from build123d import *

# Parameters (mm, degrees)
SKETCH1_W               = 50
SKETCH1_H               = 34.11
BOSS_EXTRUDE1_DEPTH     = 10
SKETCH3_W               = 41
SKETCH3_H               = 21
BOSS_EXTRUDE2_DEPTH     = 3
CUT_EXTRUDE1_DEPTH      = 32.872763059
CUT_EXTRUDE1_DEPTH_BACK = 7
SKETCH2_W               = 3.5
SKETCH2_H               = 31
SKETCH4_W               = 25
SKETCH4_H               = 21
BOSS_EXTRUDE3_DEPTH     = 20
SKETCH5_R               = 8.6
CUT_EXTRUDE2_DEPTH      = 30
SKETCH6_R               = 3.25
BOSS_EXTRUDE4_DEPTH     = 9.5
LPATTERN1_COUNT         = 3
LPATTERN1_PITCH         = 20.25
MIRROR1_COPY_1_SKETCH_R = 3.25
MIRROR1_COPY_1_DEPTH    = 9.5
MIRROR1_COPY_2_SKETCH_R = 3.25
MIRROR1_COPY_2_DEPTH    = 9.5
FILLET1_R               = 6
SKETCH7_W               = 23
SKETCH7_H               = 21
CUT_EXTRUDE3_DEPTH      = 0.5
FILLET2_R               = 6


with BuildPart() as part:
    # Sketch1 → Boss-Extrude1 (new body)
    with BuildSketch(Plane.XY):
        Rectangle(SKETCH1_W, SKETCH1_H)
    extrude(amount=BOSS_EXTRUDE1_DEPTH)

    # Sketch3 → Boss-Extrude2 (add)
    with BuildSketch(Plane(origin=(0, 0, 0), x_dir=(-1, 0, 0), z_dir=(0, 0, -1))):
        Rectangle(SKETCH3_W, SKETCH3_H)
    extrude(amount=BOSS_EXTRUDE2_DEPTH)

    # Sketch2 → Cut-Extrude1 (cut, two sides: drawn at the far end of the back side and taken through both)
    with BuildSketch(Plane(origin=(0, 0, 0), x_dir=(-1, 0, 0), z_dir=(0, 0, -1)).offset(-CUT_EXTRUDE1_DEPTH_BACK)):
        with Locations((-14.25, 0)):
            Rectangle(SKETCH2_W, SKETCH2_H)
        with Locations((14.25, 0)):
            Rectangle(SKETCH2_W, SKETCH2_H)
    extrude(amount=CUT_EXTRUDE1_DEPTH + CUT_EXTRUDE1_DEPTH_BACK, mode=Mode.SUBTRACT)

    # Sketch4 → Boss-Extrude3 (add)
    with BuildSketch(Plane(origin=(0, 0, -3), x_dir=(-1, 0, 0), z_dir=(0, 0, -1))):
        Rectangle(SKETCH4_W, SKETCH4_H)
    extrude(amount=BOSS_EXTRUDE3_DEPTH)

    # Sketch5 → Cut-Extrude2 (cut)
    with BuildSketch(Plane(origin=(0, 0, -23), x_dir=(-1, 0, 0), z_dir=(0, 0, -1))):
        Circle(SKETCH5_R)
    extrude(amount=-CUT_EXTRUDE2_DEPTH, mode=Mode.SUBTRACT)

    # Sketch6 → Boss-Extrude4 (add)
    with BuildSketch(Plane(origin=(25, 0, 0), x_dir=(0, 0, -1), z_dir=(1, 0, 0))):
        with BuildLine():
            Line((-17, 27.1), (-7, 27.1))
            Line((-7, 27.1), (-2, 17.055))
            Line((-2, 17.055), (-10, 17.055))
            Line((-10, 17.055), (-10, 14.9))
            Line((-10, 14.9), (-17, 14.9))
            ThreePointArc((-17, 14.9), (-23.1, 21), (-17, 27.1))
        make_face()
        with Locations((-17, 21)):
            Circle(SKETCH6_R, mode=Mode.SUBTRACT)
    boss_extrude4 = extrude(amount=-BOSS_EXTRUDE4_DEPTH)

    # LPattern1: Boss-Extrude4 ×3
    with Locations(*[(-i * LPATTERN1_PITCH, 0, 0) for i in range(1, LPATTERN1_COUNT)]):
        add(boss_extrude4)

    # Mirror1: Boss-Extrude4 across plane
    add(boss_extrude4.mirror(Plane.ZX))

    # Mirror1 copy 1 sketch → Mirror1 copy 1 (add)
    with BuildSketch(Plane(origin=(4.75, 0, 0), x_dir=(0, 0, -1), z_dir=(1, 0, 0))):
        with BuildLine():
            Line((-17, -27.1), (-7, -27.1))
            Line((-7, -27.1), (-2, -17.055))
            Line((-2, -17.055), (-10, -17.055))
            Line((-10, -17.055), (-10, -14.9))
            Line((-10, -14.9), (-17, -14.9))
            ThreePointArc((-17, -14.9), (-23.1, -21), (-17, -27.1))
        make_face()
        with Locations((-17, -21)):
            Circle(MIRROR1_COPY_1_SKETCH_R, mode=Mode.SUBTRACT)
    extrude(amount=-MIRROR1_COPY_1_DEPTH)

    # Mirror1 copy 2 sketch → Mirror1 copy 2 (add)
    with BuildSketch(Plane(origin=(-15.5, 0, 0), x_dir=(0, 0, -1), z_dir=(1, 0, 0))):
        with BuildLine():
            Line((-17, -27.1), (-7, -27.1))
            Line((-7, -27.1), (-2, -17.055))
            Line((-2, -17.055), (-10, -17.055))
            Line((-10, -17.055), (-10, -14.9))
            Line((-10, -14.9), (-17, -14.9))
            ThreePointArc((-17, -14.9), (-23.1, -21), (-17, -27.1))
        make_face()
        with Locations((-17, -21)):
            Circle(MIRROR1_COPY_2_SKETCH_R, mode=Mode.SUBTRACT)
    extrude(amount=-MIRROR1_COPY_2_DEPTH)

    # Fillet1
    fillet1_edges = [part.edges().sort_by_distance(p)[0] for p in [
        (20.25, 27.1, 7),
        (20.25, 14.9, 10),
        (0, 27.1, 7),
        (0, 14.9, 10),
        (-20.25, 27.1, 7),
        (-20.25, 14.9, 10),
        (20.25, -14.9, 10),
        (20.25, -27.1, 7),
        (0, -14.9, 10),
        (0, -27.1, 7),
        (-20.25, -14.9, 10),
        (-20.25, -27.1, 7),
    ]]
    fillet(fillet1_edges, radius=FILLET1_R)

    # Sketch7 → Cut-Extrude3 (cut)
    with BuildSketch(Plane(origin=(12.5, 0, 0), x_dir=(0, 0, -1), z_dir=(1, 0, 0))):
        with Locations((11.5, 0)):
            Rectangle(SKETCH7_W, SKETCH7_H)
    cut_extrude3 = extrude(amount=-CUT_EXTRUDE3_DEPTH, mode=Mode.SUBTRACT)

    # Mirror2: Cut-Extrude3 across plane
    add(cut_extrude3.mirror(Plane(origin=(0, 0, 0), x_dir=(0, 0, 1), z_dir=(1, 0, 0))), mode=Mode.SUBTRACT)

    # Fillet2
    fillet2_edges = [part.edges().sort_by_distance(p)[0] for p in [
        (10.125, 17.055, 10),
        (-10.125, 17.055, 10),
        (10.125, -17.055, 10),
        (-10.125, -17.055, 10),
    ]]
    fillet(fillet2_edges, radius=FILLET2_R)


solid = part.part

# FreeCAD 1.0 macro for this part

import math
import FreeCAD as App
import Part
import Sketcher

V = App.Vector
Q = App.Units.Quantity


def edges_at(feature, points):
    """Names of the edges that pass closest to the given points."""
    edges = feature.Shape.Edges
    near = lambda p: min(range(len(edges)), key=lambda i: edges[i].distToShape(Part.Vertex(*p))[0])
    return sorted({f"Edge{near(p) + 1}" for p in points})

doc = App.newDocument("Part")
body = doc.addObject("PartDesign::Body", "Body")

# Sketch on XY plane
sketch1 = doc.addObject("Sketcher::SketchObject", "Sketch")
body.addObject(sketch1)
sketch1.AttachmentSupport = (doc.XY_Plane, [""])
sketch1.MapMode = "FlatFace"
sketch1.addGeometry(Part.LineSegment(V(-25, 17, 0), V(-25, -17, 0)), False)
sketch1.addGeometry(Part.LineSegment(V(-25, -17, 0), V(25, -17, 0)), False)
sketch1.addGeometry(Part.LineSegment(V(25, -17, 0), V(25, 17, 0)), False)
sketch1.addGeometry(Part.LineSegment(V(25, 17, 0), V(-25, 17, 0)), False)
sketch1.addConstraint(Sketcher.Constraint("Coincident", 0, 2, 1, 1))
sketch1.addConstraint(Sketcher.Constraint("Coincident", 1, 2, 2, 1))
sketch1.addConstraint(Sketcher.Constraint("Coincident", 2, 2, 3, 1))
sketch1.addConstraint(Sketcher.Constraint("Coincident", 3, 2, 0, 1))
sketch1.addConstraint(Sketcher.Constraint("Vertical", 0))
sketch1.addConstraint(Sketcher.Constraint("Horizontal", 1))
sketch1.addConstraint(Sketcher.Constraint("Vertical", 2))
sketch1.addConstraint(Sketcher.Constraint("Horizontal", 3))
sketch1.addConstraint(Sketcher.Constraint("Symmetric", 0, 2, 2, 2, -1, 1))
sketch1.addConstraint(Sketcher.Constraint("DistanceX", 1, 1, 1, 2, Q("50 mm")))
sketch1.addConstraint(Sketcher.Constraint("DistanceY", 0, 2, 0, 1, Q("34.11 mm")))
pad1 = doc.addObject("PartDesign::Pad", "Pad")
body.addObject(pad1)
pad1.Profile = sketch1
pad1.Length = 10

# Sketch on XY plane
sketch2 = doc.addObject("Sketcher::SketchObject", "Sketch001")
body.addObject(sketch2)
sketch2.AttachmentSupport = (doc.XY_Plane, [""])
sketch2.MapMode = "FlatFace"
sketch2.addGeometry(Part.LineSegment(V(20, 10, 0), V(20, -10, 0)), False)
sketch2.addGeometry(Part.LineSegment(V(20, -10, 0), V(-20, -10, 0)), False)
sketch2.addGeometry(Part.LineSegment(V(-20, -10, 0), V(-20, 10, 0)), False)
sketch2.addGeometry(Part.LineSegment(V(-20, 10, 0), V(20, 10, 0)), False)
sketch2.addConstraint(Sketcher.Constraint("Coincident", 0, 2, 1, 1))
sketch2.addConstraint(Sketcher.Constraint("Coincident", 1, 2, 2, 1))
sketch2.addConstraint(Sketcher.Constraint("Coincident", 2, 2, 3, 1))
sketch2.addConstraint(Sketcher.Constraint("Coincident", 3, 2, 0, 1))
sketch2.addConstraint(Sketcher.Constraint("Vertical", 0))
sketch2.addConstraint(Sketcher.Constraint("Horizontal", 1))
sketch2.addConstraint(Sketcher.Constraint("Vertical", 2))
sketch2.addConstraint(Sketcher.Constraint("Horizontal", 3))
sketch2.addConstraint(Sketcher.Constraint("Symmetric", 0, 2, 2, 2, -1, 1))
sketch2.addConstraint(Sketcher.Constraint("DistanceX", 1, 2, 1, 1, Q("41 mm")))
sketch2.addConstraint(Sketcher.Constraint("DistanceY", 0, 2, 0, 1, Q("21 mm")))
pad2 = doc.addObject("PartDesign::Pad", "Pad001")
body.addObject(pad2)
pad2.Profile = sketch2
pad2.Length = 3
pad2.Reversed = True

# Sketch on XY plane
sketch3 = doc.addObject("Sketcher::SketchObject", "Sketch002")
body.addObject(sketch3)
sketch3.AttachmentSupport = (doc.XY_Plane, [""])
sketch3.MapMode = "FlatFace"
sketch3.addGeometry(Part.LineSegment(V(16, 15.5, 0), V(16, -15.5, 0)), False)
sketch3.addGeometry(Part.LineSegment(V(16, -15.5, 0), V(12.5, -15.5, 0)), False)
sketch3.addGeometry(Part.LineSegment(V(12.5, -15.5, 0), V(12.5, 15.5, 0)), False)
sketch3.addGeometry(Part.LineSegment(V(12.5, 15.5, 0), V(16, 15.5, 0)), False)
sketch3.addGeometry(Part.LineSegment(V(-12.5, 15.5, 0), V(-12.5, -15.5, 0)), False)
sketch3.addGeometry(Part.LineSegment(V(-12.5, -15.5, 0), V(-16, -15.5, 0)), False)
sketch3.addGeometry(Part.LineSegment(V(-16, -15.5, 0), V(-16, 15.5, 0)), False)
sketch3.addGeometry(Part.LineSegment(V(-16, 15.5, 0), V(-12.5, 15.5, 0)), False)
sketch3.addConstraint(Sketcher.Constraint("Coincident", 0, 2, 1, 1))
sketch3.addConstraint(Sketcher.Constraint("Coincident", 1, 2, 2, 1))
sketch3.addConstraint(Sketcher.Constraint("Coincident", 2, 2, 3, 1))
sketch3.addConstraint(Sketcher.Constraint("Coincident", 3, 2, 0, 1))
sketch3.addConstraint(Sketcher.Constraint("Coincident", 4, 2, 5, 1))
sketch3.addConstraint(Sketcher.Constraint("Coincident", 5, 2, 6, 1))
sketch3.addConstraint(Sketcher.Constraint("Coincident", 6, 2, 7, 1))
sketch3.addConstraint(Sketcher.Constraint("Coincident", 7, 2, 4, 1))
sketch3.addConstraint(Sketcher.Constraint("Vertical", 0))
sketch3.addConstraint(Sketcher.Constraint("Horizontal", 1))
sketch3.addConstraint(Sketcher.Constraint("Vertical", 2))
sketch3.addConstraint(Sketcher.Constraint("Horizontal", 3))
sketch3.addConstraint(Sketcher.Constraint("Vertical", 4))
sketch3.addConstraint(Sketcher.Constraint("Horizontal", 5))
sketch3.addConstraint(Sketcher.Constraint("Vertical", 6))
sketch3.addConstraint(Sketcher.Constraint("Horizontal", 7))
sketch3.addConstraint(Sketcher.Constraint("Symmetric", 2, 2, 4, 2, -1, 1))
sketch3.addConstraint(Sketcher.Constraint("Symmetric", 0, 2, 6, 2, -1, 1))
sketch3.addConstraint(Sketcher.Constraint("Horizontal", 1, 2, 4, 2))
sketch3.addConstraint(Sketcher.Constraint("DistanceY", 0, 2, 0, 1, Q("31 mm")))
sketch3.addConstraint(Sketcher.Constraint("DistanceX", 1, 2, 1, 1, Q("3.5 mm")))
sketch3.addConstraint(Sketcher.Constraint("DistanceX", -1, 1, 0, 2, Q("16 mm")))
pocket1 = doc.addObject("PartDesign::Pocket", "Pocket")
body.addObject(pocket1)
pocket1.Profile = sketch3
pocket1.Type = "TwoLengths"
pocket1.Length = 32.872763
pocket1.Length2 = 7

# Sketch on XY plane
sketch4 = doc.addObject("Sketcher::SketchObject", "Sketch003")
body.addObject(sketch4)
sketch4.AttachmentSupport = (doc.XY_Plane, [""])
sketch4.MapMode = "FlatFace"
sketch4.AttachmentOffset = App.Placement(V(0, 0, -3), App.Rotation())
sketch4.addGeometry(Part.LineSegment(V(12, 10, 0), V(12, -10, 0)), False)
sketch4.addGeometry(Part.LineSegment(V(12, -10, 0), V(-12, -10, 0)), False)
sketch4.addGeometry(Part.LineSegment(V(-12, -10, 0), V(-12, 10, 0)), False)
sketch4.addGeometry(Part.LineSegment(V(-12, 10, 0), V(12, 10, 0)), False)
sketch4.addConstraint(Sketcher.Constraint("Coincident", 0, 2, 1, 1))
sketch4.addConstraint(Sketcher.Constraint("Coincident", 1, 2, 2, 1))
sketch4.addConstraint(Sketcher.Constraint("Coincident", 2, 2, 3, 1))
sketch4.addConstraint(Sketcher.Constraint("Coincident", 3, 2, 0, 1))
sketch4.addConstraint(Sketcher.Constraint("Vertical", 0))
sketch4.addConstraint(Sketcher.Constraint("Horizontal", 1))
sketch4.addConstraint(Sketcher.Constraint("Vertical", 2))
sketch4.addConstraint(Sketcher.Constraint("Horizontal", 3))
sketch4.addConstraint(Sketcher.Constraint("Symmetric", 0, 2, 2, 2, -1, 1))
sketch4.addConstraint(Sketcher.Constraint("DistanceX", 1, 2, 1, 1, Q("25 mm")))
sketch4.addConstraint(Sketcher.Constraint("DistanceY", 0, 2, 0, 1, Q("21 mm")))
pad3 = doc.addObject("PartDesign::Pad", "Pad002")
body.addObject(pad3)
pad3.Profile = sketch4
pad3.Length = 20
pad3.Reversed = True

# Sketch on XY plane
sketch5 = doc.addObject("Sketcher::SketchObject", "Sketch004")
body.addObject(sketch5)
sketch5.AttachmentSupport = (doc.XY_Plane, [""])
sketch5.MapMode = "FlatFace"
sketch5.AttachmentOffset = App.Placement(V(0, 0, -23), App.Rotation())
sketch5.addGeometry(Part.Circle(V(0, 0, 0), V(0, 0, 1), 9), False)
sketch5.addConstraint(Sketcher.Constraint("Coincident", 0, 3, -1, 1))
sketch5.addConstraint(Sketcher.Constraint("Diameter", 0, Q("17.2 mm")))
pocket2 = doc.addObject("PartDesign::Pocket", "Pocket001")
body.addObject(pocket2)
pocket2.Profile = sketch5
pocket2.Length = 30
pocket2.Reversed = True

# Sketch on YZ plane
sketch6 = doc.addObject("Sketcher::SketchObject", "Sketch005")
body.addObject(sketch6)
sketch6.AttachmentSupport = (doc.YZ_Plane, [""])
sketch6.MapMode = "FlatFace"
sketch6.AttachmentOffset = App.Placement(V(0, 0, 25), App.Rotation())
sketch6.addGeometry(Part.LineSegment(V(27.1, 7, 0), V(27.1, 17, 0)), False)
sketch6.addGeometry(Part.ArcOfCircle(Part.Circle(V(21, 17, 0), V(0, 0, 1), 6.1), math.radians(0), math.radians(180)), False)
sketch6.addGeometry(Part.LineSegment(V(14.9, 17, 0), V(14.9, 10, 0)), False)
sketch6.addGeometry(Part.LineSegment(V(14.9, 10, 0), V(17.1, 10, 0)), False)
sketch6.addGeometry(Part.LineSegment(V(17.1, 10, 0), V(17.1, 2, 0)), False)
sketch6.addGeometry(Part.LineSegment(V(17.1, 2, 0), V(27.1, 7, 0)), False)
sketch6.addGeometry(Part.Circle(V(21, 17, 0), V(0, 0, 1), 3.2), False)
sketch6.addConstraint(Sketcher.Constraint("Tangent", 0, 2, 1, 1))
sketch6.addConstraint(Sketcher.Constraint("Tangent", 1, 2, 2, 1))
sketch6.addConstraint(Sketcher.Constraint("Coincident", 2, 2, 3, 1))
sketch6.addConstraint(Sketcher.Constraint("Coincident", 3, 2, 4, 1))
sketch6.addConstraint(Sketcher.Constraint("Coincident", 4, 2, 5, 1))
sketch6.addConstraint(Sketcher.Constraint("Coincident", 5, 2, 0, 1))
sketch6.addConstraint(Sketcher.Constraint("Vertical", 0))
sketch6.addConstraint(Sketcher.Constraint("Vertical", 2))
sketch6.addConstraint(Sketcher.Constraint("Horizontal", 3))
sketch6.addConstraint(Sketcher.Constraint("Vertical", 4))
sketch6.addConstraint(Sketcher.Constraint("Coincident", 6, 3, 1, 3))
sketch6.addConstraint(Sketcher.Constraint("Diameter", 6, Q("6.5 mm")))
sketch6.addConstraint(Sketcher.Constraint("Radius", 1, Q("6.1 mm")))
sketch6.addConstraint(Sketcher.Constraint("DistanceY", 0, 1, 0, 2, Q("10 mm")))
sketch6.addConstraint(Sketcher.Constraint("DistanceY", 2, 2, 2, 1, Q("7 mm")))
sketch6.addConstraint(Sketcher.Constraint("DistanceY", 4, 2, 4, 1, Q("8 mm")))
sketch6.addConstraint(Sketcher.Constraint("DistanceX", -1, 1, 1, 3, Q("21 mm")))
sketch6.addConstraint(Sketcher.Constraint("DistanceY", -1, 1, 1, 3, Q("17 mm")))
sketch6.addConstraint(Sketcher.Constraint("DistanceX", 3, 1, 3, 2, Q("2.155 mm")))
pad4 = doc.addObject("PartDesign::Pad", "Pad003")
body.addObject(pad4)
pad4.Profile = sketch6
pad4.Length = 9.5
pad4.Reversed = True
doc.recompute()

linearpattern = doc.addObject("PartDesign::LinearPattern", "LinearPattern")
body.addObject(linearpattern)
linearpattern.Originals = [pad4]
linearpattern.Direction = (doc.X_Axis, [""])
linearpattern.Mode = "offset"
linearpattern.Offset = 20.25
linearpattern.Occurrences = 3
linearpattern.Reversed = True
body.Tip = linearpattern
doc.recompute()

mirrored = doc.addObject("PartDesign::Mirrored", "Mirrored")
body.addObject(mirrored)
mirrored.Originals = [pad4]
mirrored.MirrorPlane = (doc.XZ_Plane, [""])
body.Tip = mirrored

# Sketch on YZ plane
sketch7 = doc.addObject("Sketcher::SketchObject", "Sketch006")
body.addObject(sketch7)
sketch7.AttachmentSupport = (doc.YZ_Plane, [""])
sketch7.MapMode = "FlatFace"
sketch7.AttachmentOffset = App.Placement(V(0, 0, 4.75), App.Rotation())
sketch7.addGeometry(Part.LineSegment(V(-27.1, 17, 0), V(-27.1, 7, 0)), False)
sketch7.addGeometry(Part.LineSegment(V(-27.1, 7, 0), V(-17.1, 2, 0)), False)
sketch7.addGeometry(Part.LineSegment(V(-17.1, 2, 0), V(-17.1, 10, 0)), False)
sketch7.addGeometry(Part.LineSegment(V(-17.1, 10, 0), V(-14.9, 10, 0)), False)
sketch7.addGeometry(Part.LineSegment(V(-14.9, 10, 0), V(-14.9, 17, 0)), False)
sketch7.addGeometry(Part.ArcOfCircle(Part.Circle(V(-21, 17, 0), V(0, 0, 1), 6.1), math.radians(0), math.radians(180)), False)
sketch7.addGeometry(Part.Circle(V(-21, 17, 0), V(0, 0, 1), 3.2), False)
sketch7.addConstraint(Sketcher.Constraint("Coincident", 0, 2, 1, 1))
sketch7.addConstraint(Sketcher.Constraint("Coincident", 1, 2, 2, 1))
sketch7.addConstraint(Sketcher.Constraint("Coincident", 2, 2, 3, 1))
sketch7.addConstraint(Sketcher.Constraint("Coincident", 3, 2, 4, 1))
sketch7.addConstraint(Sketcher.Constraint("Tangent", 4, 2, 5, 1))
sketch7.addConstraint(Sketcher.Constraint("Tangent", 5, 2, 0, 1))
sketch7.addConstraint(Sketcher.Constraint("Vertical", 0))
sketch7.addConstraint(Sketcher.Constraint("Vertical", 2))
sketch7.addConstraint(Sketcher.Constraint("Horizontal", 3))
sketch7.addConstraint(Sketcher.Constraint("Vertical", 4))
sketch7.addConstraint(Sketcher.Constraint("Coincident", 6, 3, 5, 3))
sketch7.addConstraint(Sketcher.Constraint("Diameter", 6, Q("6.5 mm")))
sketch7.addConstraint(Sketcher.Constraint("Radius", 5, Q("6.1 mm")))
sketch7.addConstraint(Sketcher.Constraint("DistanceY", 0, 2, 0, 1, Q("10 mm")))
sketch7.addConstraint(Sketcher.Constraint("DistanceY", 2, 1, 2, 2, Q("8 mm")))
sketch7.addConstraint(Sketcher.Constraint("DistanceY", 4, 1, 4, 2, Q("7 mm")))
sketch7.addConstraint(Sketcher.Constraint("DistanceX", 5, 3, -1, 1, Q("21 mm")))
sketch7.addConstraint(Sketcher.Constraint("DistanceY", -1, 1, 5, 3, Q("17 mm")))
sketch7.addConstraint(Sketcher.Constraint("DistanceX", 3, 1, 3, 2, Q("2.155 mm")))
pad5 = doc.addObject("PartDesign::Pad", "Pad004")
body.addObject(pad5)
pad5.Profile = sketch7
pad5.Length = 9.5
pad5.Reversed = True

# Sketch on YZ plane
sketch8 = doc.addObject("Sketcher::SketchObject", "Sketch007")
body.addObject(sketch8)
sketch8.AttachmentSupport = (doc.YZ_Plane, [""])
sketch8.MapMode = "FlatFace"
sketch8.AttachmentOffset = App.Placement(V(0, 0, -15.5), App.Rotation())
sketch8.addGeometry(Part.LineSegment(V(-27.1, 17, 0), V(-27.1, 7, 0)), False)
sketch8.addGeometry(Part.LineSegment(V(-27.1, 7, 0), V(-17.1, 2, 0)), False)
sketch8.addGeometry(Part.LineSegment(V(-17.1, 2, 0), V(-17.1, 10, 0)), False)
sketch8.addGeometry(Part.LineSegment(V(-17.1, 10, 0), V(-14.9, 10, 0)), False)
sketch8.addGeometry(Part.LineSegment(V(-14.9, 10, 0), V(-14.9, 17, 0)), False)
sketch8.addGeometry(Part.ArcOfCircle(Part.Circle(V(-21, 17, 0), V(0, 0, 1), 6.1), math.radians(0), math.radians(180)), False)
sketch8.addGeometry(Part.Circle(V(-21, 17, 0), V(0, 0, 1), 3.2), False)
sketch8.addConstraint(Sketcher.Constraint("Coincident", 0, 2, 1, 1))
sketch8.addConstraint(Sketcher.Constraint("Coincident", 1, 2, 2, 1))
sketch8.addConstraint(Sketcher.Constraint("Coincident", 2, 2, 3, 1))
sketch8.addConstraint(Sketcher.Constraint("Coincident", 3, 2, 4, 1))
sketch8.addConstraint(Sketcher.Constraint("Tangent", 4, 2, 5, 1))
sketch8.addConstraint(Sketcher.Constraint("Tangent", 5, 2, 0, 1))
sketch8.addConstraint(Sketcher.Constraint("Vertical", 0))
sketch8.addConstraint(Sketcher.Constraint("Vertical", 2))
sketch8.addConstraint(Sketcher.Constraint("Horizontal", 3))
sketch8.addConstraint(Sketcher.Constraint("Vertical", 4))
sketch8.addConstraint(Sketcher.Constraint("Coincident", 6, 3, 5, 3))
sketch8.addConstraint(Sketcher.Constraint("Diameter", 6, Q("6.5 mm")))
sketch8.addConstraint(Sketcher.Constraint("Radius", 5, Q("6.1 mm")))
sketch8.addConstraint(Sketcher.Constraint("DistanceY", 0, 2, 0, 1, Q("10 mm")))
sketch8.addConstraint(Sketcher.Constraint("DistanceY", 2, 1, 2, 2, Q("8 mm")))
sketch8.addConstraint(Sketcher.Constraint("DistanceY", 4, 1, 4, 2, Q("7 mm")))
sketch8.addConstraint(Sketcher.Constraint("DistanceX", 5, 3, -1, 1, Q("21 mm")))
sketch8.addConstraint(Sketcher.Constraint("DistanceY", -1, 1, 5, 3, Q("17 mm")))
sketch8.addConstraint(Sketcher.Constraint("DistanceX", 3, 1, 3, 2, Q("2.155 mm")))
pad6 = doc.addObject("PartDesign::Pad", "Pad005")
body.addObject(pad6)
pad6.Profile = sketch8
pad6.Length = 9.5
pad6.Reversed = True
doc.recompute()

fillet = doc.addObject("PartDesign::Fillet", "Fillet")
body.addObject(fillet)
fillet.Base = (pad6, edges_at(pad6, [
    (20.25, 27.1, 7),
    (20.25, 14.9, 10),
    (0, 27.1, 7),
    (0, 14.9, 10),
    (-20.25, 27.1, 7),
    (-20.25, 14.9, 10),
    (20.25, -14.9, 10),
    (20.25, -27.1, 7),
    (0, -14.9, 10),
    (0, -27.1, 7),
    (-20.25, -14.9, 10),
    (-20.25, -27.1, 7),
]))
fillet.Radius = 6

# Sketch on YZ plane
sketch9 = doc.addObject("Sketcher::SketchObject", "Sketch008")
body.addObject(sketch9)
sketch9.AttachmentSupport = (doc.YZ_Plane, [""])
sketch9.MapMode = "FlatFace"
sketch9.AttachmentOffset = App.Placement(V(0, 0, 12.5), App.Rotation())
sketch9.addGeometry(Part.LineSegment(V(10, 0, 0), V(-10, 0, 0)), False)
sketch9.addGeometry(Part.LineSegment(V(-10, 0, 0), V(-10, -23, 0)), False)
sketch9.addGeometry(Part.LineSegment(V(-10, -23, 0), V(10, -23, 0)), False)
sketch9.addGeometry(Part.LineSegment(V(10, -23, 0), V(10, 0, 0)), False)
sketch9.addConstraint(Sketcher.Constraint("Coincident", 0, 2, 1, 1))
sketch9.addConstraint(Sketcher.Constraint("Coincident", 1, 2, 2, 1))
sketch9.addConstraint(Sketcher.Constraint("Coincident", 2, 2, 3, 1))
sketch9.addConstraint(Sketcher.Constraint("Coincident", 3, 2, 0, 1))
sketch9.addConstraint(Sketcher.Constraint("Horizontal", 0))
sketch9.addConstraint(Sketcher.Constraint("Vertical", 1))
sketch9.addConstraint(Sketcher.Constraint("Horizontal", 2))
sketch9.addConstraint(Sketcher.Constraint("Vertical", 3))
sketch9.addConstraint(Sketcher.Constraint("Symmetric", 0, 2, 3, 2, -1, 1))
sketch9.addConstraint(Sketcher.Constraint("DistanceX", 0, 2, 0, 1, Q("21 mm")))
sketch9.addConstraint(Sketcher.Constraint("DistanceY", 1, 2, 1, 1, Q("23 mm")))
pocket3 = doc.addObject("PartDesign::Pocket", "Pocket002")
body.addObject(pocket3)
pocket3.Profile = sketch9
pocket3.Length = 0.5
doc.recompute()

mirrored2 = doc.addObject("PartDesign::Mirrored", "Mirrored001")
body.addObject(mirrored2)
mirrored2.Originals = [pocket3]
mirrored2.MirrorPlane = (doc.YZ_Plane, [""])
body.Tip = mirrored2
doc.recompute()

fillet2 = doc.addObject("PartDesign::Fillet", "Fillet001")
body.addObject(fillet2)
fillet2.Base = (mirrored2, edges_at(mirrored2, [
    (10.125, 17.055, 10),
    (-10.125, 17.055, 10),
    (10.125, -17.055, 10),
    (-10.125, -17.055, 10),
]))
fillet2.Radius = 6

doc.recompute()
